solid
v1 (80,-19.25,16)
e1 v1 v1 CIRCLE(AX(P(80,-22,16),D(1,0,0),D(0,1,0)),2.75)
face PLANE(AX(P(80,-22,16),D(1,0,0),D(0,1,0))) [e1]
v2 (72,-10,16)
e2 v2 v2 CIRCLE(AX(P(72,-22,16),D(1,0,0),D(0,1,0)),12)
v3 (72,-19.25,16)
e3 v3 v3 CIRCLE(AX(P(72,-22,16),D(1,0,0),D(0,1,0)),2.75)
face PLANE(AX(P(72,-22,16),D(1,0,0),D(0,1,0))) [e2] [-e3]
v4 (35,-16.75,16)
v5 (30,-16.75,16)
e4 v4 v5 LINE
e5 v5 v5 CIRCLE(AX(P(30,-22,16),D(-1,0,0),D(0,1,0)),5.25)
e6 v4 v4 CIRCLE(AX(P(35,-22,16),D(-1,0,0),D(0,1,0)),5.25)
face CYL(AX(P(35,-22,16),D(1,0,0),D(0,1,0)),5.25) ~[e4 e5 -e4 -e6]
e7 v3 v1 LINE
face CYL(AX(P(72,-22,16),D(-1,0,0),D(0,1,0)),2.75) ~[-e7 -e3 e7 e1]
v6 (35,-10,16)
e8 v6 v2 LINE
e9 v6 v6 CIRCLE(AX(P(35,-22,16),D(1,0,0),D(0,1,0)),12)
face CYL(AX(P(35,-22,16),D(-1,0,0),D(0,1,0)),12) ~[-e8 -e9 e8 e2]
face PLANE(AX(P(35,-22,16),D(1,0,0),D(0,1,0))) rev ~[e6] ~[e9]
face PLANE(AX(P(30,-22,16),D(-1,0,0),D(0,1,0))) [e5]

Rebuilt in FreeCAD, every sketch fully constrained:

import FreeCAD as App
import Part
import Sketcher

doc = App.newDocument("Part")
params = doc.addObject("Spreadsheet::Sheet", "Params")
for row, (alias, value) in enumerate([
    ("sketch1_diameter", "24 mm"),
    ("pad1_length", "37 mm"),
    ("sketch2_diameter", "5.5 mm"),
    ("pad2_length", "8 mm"),
    ("sketch3_diameter", "10.5 mm"),
    ("pad3_length", "5 mm"),
], start=1):
    params.set(f"A{row}", alias)
    params.set(f"B{row}", "=" + value)
    params.setAlias(f"B{row}", alias)

body = doc.addObject("PartDesign::Body", "Body")

# Sketch on YZ plane
sketch1 = body.newObject("Sketcher::SketchObject", "Sketch")
sketch1.AttachmentSupport = (doc.getObject("YZ_Plane"), [""])
sketch1.MapMode = "FlatFace"
sketch1.addGeometry(Part.Circle(App.Vector(0, 0, 0), App.Vector(0, 0, 1), 12), False)
sketch1.addConstraint([
    Sketcher.Constraint("Coincident", 0, 3, -1, 1),
    Sketcher.Constraint("Diameter", 0, 24.0),
])
sketch1.setExpression("Constraints[1]", "Params.sketch1_diameter")
pad1 = body.newObject("PartDesign::Pad", "Pad")
pad1.Profile = sketch1
pad1.setExpression("Length", "Params.pad1_length")

# Sketch on YZ plane
sketch2 = body.newObject("Sketcher::SketchObject", "Sketch001")
sketch2.AttachmentSupport = (doc.getObject("YZ_Plane"), [""])
sketch2.MapMode = "FlatFace"
sketch2.AttachmentOffset = App.Placement(App.Vector(0, 0, 37), App.Rotation())
sketch2.addGeometry(Part.Circle(App.Vector(0, 0, 0), App.Vector(0, 0, 1), 2.8), False)
sketch2.addConstraint([
    Sketcher.Constraint("Coincident", 0, 3, -1, 1),
    Sketcher.Constraint("Diameter", 0, 5.5),
])
sketch2.setExpression("Constraints[1]", "Params.sketch2_diameter")
pad2 = body.newObject("PartDesign::Pad", "Pad001")
pad2.Profile = sketch2
pad2.setExpression("Length", "Params.pad2_length")

# Sketch on YZ plane
sketch3 = body.newObject("Sketcher::SketchObject", "Sketch002")
sketch3.AttachmentSupport = (doc.getObject("YZ_Plane"), [""])
sketch3.MapMode = "FlatFace"
sketch3.addGeometry(Part.Circle(App.Vector(0, 0, 0), App.Vector(0, 0, 1), 5), False)
sketch3.addConstraint([
    Sketcher.Constraint("Coincident", 0, 3, -1, 1),
    Sketcher.Constraint("Diameter", 0, 10.5),
])
sketch3.setExpression("Constraints[1]", "Params.sketch3_diameter")
pad3 = body.newObject("PartDesign::Pad", "Pad002")
pad3.Profile = sketch3
pad3.setExpression("Length", "Params.pad3_length")
pad3.Reversed = True
body2 = doc.addObject("PartDesign::Body", "Body001")
doc.recompute()

body.Placement = App.Placement(App.Vector(35, -22, 16), App.Rotation(App.Vector(0, 0, 1), 0))
boolean = body2.newObject("PartDesign::Boolean", "Boolean")
boolean.Type = "Fuse"
boolean.addObjects([body])

doc.recompute()
